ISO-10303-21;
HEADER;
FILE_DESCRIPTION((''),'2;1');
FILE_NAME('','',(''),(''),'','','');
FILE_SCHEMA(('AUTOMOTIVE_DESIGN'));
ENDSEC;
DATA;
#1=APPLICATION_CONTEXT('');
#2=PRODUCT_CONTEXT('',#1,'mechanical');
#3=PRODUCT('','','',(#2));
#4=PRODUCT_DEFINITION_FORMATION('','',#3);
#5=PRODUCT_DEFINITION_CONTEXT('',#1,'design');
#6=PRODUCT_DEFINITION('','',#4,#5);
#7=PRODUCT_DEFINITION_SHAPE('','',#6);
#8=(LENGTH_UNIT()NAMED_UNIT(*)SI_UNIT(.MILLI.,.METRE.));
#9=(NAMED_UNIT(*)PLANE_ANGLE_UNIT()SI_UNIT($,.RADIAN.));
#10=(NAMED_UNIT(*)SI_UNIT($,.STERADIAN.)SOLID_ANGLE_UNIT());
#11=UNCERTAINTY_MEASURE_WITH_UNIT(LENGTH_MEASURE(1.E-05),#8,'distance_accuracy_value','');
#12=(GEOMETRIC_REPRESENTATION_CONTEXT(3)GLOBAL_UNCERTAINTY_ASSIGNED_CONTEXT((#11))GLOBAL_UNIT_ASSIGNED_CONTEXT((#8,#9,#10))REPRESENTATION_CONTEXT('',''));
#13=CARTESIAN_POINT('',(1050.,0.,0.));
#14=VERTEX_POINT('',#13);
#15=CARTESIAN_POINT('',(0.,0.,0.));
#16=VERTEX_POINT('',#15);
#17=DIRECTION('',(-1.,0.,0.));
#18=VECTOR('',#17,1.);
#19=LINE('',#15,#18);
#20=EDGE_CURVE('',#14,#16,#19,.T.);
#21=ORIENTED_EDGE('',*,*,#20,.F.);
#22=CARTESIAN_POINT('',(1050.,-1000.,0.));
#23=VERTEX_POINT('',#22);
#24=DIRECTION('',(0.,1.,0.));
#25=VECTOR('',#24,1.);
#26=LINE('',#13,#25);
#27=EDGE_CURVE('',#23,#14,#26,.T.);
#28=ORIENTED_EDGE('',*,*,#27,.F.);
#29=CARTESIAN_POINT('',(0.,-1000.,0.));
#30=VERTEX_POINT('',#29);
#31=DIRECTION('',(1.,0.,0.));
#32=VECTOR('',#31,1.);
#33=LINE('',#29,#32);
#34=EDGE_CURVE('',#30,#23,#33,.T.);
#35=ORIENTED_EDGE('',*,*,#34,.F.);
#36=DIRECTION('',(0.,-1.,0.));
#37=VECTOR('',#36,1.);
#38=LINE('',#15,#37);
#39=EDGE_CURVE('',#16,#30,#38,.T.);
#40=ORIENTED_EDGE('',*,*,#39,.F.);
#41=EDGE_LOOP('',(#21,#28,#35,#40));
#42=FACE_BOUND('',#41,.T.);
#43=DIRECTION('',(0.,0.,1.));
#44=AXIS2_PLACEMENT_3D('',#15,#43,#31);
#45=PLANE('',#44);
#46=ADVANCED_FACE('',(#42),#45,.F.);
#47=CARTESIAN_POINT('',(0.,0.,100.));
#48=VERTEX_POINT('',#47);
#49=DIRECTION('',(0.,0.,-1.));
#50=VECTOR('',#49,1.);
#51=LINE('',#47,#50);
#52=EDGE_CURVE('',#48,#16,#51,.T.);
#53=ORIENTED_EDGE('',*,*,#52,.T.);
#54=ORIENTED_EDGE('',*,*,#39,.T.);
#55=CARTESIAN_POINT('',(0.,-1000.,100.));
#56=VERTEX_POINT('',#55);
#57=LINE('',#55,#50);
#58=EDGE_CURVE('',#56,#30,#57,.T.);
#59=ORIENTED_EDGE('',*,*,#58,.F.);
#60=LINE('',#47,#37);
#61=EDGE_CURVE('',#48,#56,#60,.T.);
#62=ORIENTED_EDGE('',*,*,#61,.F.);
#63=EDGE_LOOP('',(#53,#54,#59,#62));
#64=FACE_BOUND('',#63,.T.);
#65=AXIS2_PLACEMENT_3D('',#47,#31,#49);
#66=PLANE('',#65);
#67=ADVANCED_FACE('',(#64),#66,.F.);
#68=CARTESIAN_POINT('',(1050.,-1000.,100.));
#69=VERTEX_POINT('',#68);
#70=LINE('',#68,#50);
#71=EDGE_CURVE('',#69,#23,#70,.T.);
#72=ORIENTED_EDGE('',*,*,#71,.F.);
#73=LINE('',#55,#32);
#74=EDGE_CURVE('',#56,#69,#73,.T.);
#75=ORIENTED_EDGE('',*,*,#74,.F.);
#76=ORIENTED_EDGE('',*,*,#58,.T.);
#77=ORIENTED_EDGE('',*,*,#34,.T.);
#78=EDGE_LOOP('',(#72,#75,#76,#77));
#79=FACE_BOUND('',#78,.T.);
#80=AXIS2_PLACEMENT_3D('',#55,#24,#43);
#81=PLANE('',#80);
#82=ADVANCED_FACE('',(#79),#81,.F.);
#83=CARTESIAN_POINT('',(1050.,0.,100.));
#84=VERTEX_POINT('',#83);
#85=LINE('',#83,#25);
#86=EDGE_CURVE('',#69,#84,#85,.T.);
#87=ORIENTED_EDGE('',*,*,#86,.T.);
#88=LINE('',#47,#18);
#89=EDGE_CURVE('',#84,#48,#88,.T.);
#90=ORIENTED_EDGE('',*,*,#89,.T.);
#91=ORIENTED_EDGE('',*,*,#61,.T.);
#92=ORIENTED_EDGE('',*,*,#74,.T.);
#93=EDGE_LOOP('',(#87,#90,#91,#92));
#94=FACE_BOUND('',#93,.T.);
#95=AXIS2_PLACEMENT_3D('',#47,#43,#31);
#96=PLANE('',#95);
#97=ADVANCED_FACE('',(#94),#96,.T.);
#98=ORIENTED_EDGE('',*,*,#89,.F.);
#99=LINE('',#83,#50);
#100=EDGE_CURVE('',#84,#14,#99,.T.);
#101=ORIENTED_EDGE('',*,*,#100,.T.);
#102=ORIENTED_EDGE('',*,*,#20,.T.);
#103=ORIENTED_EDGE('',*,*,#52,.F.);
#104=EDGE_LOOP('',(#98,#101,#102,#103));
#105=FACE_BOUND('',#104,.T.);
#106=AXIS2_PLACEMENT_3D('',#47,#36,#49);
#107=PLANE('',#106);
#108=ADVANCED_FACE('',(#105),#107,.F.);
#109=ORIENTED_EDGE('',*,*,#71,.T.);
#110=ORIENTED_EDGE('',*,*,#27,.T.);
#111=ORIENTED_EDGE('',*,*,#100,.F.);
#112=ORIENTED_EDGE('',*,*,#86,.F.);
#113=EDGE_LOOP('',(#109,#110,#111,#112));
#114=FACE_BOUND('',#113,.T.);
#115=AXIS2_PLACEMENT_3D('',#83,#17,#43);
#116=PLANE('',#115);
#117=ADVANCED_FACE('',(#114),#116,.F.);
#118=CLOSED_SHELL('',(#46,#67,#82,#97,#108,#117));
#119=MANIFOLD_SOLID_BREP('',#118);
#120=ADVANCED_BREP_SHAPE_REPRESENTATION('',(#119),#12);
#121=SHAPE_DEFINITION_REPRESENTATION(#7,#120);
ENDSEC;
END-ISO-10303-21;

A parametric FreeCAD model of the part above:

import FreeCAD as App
import Part
import Sketcher

V = App.Vector
Q = App.Units.Quantity


def add_polygon(sketch, points):
    """Adds a closed chain of lines whose ends are joined by coincident constraints."""
    first, n = sketch.GeometryCount, len(points)
    for a, b in zip(points, points[1:] + points[:1]):
        sketch.addGeometry(Part.LineSegment(App.Vector(*a, 0), App.Vector(*b, 0)), False)
    for i in range(n):
        sketch.addConstraint(Sketcher.Constraint("Coincident", first + i, 2, first + (i + 1) % n, 1))

doc = App.newDocument("Part")
params = doc.addObject("Spreadsheet::Sheet", "Params")
for row, (alias, value) in enumerate([
    ("sketch1_width", "1050 mm"),
    ("sketch1_height", "1000 mm"),
    ("pad1_length", "100 mm"),
], start=1):
    params.set(f"A{row}", alias)
    params.set(f"B{row}", "=" + value)
    params.setAlias(f"B{row}", alias)

body = doc.addObject("PartDesign::Body", "Body")

# Sketch on XY plane
sketch1 = body.newObject("Sketcher::SketchObject", "Sketch")
sketch1.AttachmentSupport = (doc.getObject("XY_Plane"), [""])
sketch1.MapMode = "FlatFace"
add_polygon(sketch1, [(0, 0), (0, -1000), (1050, -1000), (1050, 0)])  # lines 0-3
sketch1.addConstraint([
    Sketcher.Constraint("Vertical", 0),
    Sketcher.Constraint("Horizontal", 1),
    Sketcher.Constraint("Vertical", 2),
    Sketcher.Constraint("Horizontal", 3),
    Sketcher.Constraint("Coincident", 3, 2, -1, 1),
    Sketcher.Constraint("DistanceX", 1, 1, 1, 2, Q("1050 mm")),
    Sketcher.Constraint("DistanceY", 0, 2, 0, 1, Q("1000 mm")),
])
sketch1.setExpression("Constraints[9]", "Params.sketch1_width")
sketch1.setExpression("Constraints[10]", "Params.sketch1_height")
pad1 = body.newObject("PartDesign::Pad", "Pad")
pad1.Profile = sketch1
pad1.setExpression("Length", "Params.pad1_length")

doc.recompute()
